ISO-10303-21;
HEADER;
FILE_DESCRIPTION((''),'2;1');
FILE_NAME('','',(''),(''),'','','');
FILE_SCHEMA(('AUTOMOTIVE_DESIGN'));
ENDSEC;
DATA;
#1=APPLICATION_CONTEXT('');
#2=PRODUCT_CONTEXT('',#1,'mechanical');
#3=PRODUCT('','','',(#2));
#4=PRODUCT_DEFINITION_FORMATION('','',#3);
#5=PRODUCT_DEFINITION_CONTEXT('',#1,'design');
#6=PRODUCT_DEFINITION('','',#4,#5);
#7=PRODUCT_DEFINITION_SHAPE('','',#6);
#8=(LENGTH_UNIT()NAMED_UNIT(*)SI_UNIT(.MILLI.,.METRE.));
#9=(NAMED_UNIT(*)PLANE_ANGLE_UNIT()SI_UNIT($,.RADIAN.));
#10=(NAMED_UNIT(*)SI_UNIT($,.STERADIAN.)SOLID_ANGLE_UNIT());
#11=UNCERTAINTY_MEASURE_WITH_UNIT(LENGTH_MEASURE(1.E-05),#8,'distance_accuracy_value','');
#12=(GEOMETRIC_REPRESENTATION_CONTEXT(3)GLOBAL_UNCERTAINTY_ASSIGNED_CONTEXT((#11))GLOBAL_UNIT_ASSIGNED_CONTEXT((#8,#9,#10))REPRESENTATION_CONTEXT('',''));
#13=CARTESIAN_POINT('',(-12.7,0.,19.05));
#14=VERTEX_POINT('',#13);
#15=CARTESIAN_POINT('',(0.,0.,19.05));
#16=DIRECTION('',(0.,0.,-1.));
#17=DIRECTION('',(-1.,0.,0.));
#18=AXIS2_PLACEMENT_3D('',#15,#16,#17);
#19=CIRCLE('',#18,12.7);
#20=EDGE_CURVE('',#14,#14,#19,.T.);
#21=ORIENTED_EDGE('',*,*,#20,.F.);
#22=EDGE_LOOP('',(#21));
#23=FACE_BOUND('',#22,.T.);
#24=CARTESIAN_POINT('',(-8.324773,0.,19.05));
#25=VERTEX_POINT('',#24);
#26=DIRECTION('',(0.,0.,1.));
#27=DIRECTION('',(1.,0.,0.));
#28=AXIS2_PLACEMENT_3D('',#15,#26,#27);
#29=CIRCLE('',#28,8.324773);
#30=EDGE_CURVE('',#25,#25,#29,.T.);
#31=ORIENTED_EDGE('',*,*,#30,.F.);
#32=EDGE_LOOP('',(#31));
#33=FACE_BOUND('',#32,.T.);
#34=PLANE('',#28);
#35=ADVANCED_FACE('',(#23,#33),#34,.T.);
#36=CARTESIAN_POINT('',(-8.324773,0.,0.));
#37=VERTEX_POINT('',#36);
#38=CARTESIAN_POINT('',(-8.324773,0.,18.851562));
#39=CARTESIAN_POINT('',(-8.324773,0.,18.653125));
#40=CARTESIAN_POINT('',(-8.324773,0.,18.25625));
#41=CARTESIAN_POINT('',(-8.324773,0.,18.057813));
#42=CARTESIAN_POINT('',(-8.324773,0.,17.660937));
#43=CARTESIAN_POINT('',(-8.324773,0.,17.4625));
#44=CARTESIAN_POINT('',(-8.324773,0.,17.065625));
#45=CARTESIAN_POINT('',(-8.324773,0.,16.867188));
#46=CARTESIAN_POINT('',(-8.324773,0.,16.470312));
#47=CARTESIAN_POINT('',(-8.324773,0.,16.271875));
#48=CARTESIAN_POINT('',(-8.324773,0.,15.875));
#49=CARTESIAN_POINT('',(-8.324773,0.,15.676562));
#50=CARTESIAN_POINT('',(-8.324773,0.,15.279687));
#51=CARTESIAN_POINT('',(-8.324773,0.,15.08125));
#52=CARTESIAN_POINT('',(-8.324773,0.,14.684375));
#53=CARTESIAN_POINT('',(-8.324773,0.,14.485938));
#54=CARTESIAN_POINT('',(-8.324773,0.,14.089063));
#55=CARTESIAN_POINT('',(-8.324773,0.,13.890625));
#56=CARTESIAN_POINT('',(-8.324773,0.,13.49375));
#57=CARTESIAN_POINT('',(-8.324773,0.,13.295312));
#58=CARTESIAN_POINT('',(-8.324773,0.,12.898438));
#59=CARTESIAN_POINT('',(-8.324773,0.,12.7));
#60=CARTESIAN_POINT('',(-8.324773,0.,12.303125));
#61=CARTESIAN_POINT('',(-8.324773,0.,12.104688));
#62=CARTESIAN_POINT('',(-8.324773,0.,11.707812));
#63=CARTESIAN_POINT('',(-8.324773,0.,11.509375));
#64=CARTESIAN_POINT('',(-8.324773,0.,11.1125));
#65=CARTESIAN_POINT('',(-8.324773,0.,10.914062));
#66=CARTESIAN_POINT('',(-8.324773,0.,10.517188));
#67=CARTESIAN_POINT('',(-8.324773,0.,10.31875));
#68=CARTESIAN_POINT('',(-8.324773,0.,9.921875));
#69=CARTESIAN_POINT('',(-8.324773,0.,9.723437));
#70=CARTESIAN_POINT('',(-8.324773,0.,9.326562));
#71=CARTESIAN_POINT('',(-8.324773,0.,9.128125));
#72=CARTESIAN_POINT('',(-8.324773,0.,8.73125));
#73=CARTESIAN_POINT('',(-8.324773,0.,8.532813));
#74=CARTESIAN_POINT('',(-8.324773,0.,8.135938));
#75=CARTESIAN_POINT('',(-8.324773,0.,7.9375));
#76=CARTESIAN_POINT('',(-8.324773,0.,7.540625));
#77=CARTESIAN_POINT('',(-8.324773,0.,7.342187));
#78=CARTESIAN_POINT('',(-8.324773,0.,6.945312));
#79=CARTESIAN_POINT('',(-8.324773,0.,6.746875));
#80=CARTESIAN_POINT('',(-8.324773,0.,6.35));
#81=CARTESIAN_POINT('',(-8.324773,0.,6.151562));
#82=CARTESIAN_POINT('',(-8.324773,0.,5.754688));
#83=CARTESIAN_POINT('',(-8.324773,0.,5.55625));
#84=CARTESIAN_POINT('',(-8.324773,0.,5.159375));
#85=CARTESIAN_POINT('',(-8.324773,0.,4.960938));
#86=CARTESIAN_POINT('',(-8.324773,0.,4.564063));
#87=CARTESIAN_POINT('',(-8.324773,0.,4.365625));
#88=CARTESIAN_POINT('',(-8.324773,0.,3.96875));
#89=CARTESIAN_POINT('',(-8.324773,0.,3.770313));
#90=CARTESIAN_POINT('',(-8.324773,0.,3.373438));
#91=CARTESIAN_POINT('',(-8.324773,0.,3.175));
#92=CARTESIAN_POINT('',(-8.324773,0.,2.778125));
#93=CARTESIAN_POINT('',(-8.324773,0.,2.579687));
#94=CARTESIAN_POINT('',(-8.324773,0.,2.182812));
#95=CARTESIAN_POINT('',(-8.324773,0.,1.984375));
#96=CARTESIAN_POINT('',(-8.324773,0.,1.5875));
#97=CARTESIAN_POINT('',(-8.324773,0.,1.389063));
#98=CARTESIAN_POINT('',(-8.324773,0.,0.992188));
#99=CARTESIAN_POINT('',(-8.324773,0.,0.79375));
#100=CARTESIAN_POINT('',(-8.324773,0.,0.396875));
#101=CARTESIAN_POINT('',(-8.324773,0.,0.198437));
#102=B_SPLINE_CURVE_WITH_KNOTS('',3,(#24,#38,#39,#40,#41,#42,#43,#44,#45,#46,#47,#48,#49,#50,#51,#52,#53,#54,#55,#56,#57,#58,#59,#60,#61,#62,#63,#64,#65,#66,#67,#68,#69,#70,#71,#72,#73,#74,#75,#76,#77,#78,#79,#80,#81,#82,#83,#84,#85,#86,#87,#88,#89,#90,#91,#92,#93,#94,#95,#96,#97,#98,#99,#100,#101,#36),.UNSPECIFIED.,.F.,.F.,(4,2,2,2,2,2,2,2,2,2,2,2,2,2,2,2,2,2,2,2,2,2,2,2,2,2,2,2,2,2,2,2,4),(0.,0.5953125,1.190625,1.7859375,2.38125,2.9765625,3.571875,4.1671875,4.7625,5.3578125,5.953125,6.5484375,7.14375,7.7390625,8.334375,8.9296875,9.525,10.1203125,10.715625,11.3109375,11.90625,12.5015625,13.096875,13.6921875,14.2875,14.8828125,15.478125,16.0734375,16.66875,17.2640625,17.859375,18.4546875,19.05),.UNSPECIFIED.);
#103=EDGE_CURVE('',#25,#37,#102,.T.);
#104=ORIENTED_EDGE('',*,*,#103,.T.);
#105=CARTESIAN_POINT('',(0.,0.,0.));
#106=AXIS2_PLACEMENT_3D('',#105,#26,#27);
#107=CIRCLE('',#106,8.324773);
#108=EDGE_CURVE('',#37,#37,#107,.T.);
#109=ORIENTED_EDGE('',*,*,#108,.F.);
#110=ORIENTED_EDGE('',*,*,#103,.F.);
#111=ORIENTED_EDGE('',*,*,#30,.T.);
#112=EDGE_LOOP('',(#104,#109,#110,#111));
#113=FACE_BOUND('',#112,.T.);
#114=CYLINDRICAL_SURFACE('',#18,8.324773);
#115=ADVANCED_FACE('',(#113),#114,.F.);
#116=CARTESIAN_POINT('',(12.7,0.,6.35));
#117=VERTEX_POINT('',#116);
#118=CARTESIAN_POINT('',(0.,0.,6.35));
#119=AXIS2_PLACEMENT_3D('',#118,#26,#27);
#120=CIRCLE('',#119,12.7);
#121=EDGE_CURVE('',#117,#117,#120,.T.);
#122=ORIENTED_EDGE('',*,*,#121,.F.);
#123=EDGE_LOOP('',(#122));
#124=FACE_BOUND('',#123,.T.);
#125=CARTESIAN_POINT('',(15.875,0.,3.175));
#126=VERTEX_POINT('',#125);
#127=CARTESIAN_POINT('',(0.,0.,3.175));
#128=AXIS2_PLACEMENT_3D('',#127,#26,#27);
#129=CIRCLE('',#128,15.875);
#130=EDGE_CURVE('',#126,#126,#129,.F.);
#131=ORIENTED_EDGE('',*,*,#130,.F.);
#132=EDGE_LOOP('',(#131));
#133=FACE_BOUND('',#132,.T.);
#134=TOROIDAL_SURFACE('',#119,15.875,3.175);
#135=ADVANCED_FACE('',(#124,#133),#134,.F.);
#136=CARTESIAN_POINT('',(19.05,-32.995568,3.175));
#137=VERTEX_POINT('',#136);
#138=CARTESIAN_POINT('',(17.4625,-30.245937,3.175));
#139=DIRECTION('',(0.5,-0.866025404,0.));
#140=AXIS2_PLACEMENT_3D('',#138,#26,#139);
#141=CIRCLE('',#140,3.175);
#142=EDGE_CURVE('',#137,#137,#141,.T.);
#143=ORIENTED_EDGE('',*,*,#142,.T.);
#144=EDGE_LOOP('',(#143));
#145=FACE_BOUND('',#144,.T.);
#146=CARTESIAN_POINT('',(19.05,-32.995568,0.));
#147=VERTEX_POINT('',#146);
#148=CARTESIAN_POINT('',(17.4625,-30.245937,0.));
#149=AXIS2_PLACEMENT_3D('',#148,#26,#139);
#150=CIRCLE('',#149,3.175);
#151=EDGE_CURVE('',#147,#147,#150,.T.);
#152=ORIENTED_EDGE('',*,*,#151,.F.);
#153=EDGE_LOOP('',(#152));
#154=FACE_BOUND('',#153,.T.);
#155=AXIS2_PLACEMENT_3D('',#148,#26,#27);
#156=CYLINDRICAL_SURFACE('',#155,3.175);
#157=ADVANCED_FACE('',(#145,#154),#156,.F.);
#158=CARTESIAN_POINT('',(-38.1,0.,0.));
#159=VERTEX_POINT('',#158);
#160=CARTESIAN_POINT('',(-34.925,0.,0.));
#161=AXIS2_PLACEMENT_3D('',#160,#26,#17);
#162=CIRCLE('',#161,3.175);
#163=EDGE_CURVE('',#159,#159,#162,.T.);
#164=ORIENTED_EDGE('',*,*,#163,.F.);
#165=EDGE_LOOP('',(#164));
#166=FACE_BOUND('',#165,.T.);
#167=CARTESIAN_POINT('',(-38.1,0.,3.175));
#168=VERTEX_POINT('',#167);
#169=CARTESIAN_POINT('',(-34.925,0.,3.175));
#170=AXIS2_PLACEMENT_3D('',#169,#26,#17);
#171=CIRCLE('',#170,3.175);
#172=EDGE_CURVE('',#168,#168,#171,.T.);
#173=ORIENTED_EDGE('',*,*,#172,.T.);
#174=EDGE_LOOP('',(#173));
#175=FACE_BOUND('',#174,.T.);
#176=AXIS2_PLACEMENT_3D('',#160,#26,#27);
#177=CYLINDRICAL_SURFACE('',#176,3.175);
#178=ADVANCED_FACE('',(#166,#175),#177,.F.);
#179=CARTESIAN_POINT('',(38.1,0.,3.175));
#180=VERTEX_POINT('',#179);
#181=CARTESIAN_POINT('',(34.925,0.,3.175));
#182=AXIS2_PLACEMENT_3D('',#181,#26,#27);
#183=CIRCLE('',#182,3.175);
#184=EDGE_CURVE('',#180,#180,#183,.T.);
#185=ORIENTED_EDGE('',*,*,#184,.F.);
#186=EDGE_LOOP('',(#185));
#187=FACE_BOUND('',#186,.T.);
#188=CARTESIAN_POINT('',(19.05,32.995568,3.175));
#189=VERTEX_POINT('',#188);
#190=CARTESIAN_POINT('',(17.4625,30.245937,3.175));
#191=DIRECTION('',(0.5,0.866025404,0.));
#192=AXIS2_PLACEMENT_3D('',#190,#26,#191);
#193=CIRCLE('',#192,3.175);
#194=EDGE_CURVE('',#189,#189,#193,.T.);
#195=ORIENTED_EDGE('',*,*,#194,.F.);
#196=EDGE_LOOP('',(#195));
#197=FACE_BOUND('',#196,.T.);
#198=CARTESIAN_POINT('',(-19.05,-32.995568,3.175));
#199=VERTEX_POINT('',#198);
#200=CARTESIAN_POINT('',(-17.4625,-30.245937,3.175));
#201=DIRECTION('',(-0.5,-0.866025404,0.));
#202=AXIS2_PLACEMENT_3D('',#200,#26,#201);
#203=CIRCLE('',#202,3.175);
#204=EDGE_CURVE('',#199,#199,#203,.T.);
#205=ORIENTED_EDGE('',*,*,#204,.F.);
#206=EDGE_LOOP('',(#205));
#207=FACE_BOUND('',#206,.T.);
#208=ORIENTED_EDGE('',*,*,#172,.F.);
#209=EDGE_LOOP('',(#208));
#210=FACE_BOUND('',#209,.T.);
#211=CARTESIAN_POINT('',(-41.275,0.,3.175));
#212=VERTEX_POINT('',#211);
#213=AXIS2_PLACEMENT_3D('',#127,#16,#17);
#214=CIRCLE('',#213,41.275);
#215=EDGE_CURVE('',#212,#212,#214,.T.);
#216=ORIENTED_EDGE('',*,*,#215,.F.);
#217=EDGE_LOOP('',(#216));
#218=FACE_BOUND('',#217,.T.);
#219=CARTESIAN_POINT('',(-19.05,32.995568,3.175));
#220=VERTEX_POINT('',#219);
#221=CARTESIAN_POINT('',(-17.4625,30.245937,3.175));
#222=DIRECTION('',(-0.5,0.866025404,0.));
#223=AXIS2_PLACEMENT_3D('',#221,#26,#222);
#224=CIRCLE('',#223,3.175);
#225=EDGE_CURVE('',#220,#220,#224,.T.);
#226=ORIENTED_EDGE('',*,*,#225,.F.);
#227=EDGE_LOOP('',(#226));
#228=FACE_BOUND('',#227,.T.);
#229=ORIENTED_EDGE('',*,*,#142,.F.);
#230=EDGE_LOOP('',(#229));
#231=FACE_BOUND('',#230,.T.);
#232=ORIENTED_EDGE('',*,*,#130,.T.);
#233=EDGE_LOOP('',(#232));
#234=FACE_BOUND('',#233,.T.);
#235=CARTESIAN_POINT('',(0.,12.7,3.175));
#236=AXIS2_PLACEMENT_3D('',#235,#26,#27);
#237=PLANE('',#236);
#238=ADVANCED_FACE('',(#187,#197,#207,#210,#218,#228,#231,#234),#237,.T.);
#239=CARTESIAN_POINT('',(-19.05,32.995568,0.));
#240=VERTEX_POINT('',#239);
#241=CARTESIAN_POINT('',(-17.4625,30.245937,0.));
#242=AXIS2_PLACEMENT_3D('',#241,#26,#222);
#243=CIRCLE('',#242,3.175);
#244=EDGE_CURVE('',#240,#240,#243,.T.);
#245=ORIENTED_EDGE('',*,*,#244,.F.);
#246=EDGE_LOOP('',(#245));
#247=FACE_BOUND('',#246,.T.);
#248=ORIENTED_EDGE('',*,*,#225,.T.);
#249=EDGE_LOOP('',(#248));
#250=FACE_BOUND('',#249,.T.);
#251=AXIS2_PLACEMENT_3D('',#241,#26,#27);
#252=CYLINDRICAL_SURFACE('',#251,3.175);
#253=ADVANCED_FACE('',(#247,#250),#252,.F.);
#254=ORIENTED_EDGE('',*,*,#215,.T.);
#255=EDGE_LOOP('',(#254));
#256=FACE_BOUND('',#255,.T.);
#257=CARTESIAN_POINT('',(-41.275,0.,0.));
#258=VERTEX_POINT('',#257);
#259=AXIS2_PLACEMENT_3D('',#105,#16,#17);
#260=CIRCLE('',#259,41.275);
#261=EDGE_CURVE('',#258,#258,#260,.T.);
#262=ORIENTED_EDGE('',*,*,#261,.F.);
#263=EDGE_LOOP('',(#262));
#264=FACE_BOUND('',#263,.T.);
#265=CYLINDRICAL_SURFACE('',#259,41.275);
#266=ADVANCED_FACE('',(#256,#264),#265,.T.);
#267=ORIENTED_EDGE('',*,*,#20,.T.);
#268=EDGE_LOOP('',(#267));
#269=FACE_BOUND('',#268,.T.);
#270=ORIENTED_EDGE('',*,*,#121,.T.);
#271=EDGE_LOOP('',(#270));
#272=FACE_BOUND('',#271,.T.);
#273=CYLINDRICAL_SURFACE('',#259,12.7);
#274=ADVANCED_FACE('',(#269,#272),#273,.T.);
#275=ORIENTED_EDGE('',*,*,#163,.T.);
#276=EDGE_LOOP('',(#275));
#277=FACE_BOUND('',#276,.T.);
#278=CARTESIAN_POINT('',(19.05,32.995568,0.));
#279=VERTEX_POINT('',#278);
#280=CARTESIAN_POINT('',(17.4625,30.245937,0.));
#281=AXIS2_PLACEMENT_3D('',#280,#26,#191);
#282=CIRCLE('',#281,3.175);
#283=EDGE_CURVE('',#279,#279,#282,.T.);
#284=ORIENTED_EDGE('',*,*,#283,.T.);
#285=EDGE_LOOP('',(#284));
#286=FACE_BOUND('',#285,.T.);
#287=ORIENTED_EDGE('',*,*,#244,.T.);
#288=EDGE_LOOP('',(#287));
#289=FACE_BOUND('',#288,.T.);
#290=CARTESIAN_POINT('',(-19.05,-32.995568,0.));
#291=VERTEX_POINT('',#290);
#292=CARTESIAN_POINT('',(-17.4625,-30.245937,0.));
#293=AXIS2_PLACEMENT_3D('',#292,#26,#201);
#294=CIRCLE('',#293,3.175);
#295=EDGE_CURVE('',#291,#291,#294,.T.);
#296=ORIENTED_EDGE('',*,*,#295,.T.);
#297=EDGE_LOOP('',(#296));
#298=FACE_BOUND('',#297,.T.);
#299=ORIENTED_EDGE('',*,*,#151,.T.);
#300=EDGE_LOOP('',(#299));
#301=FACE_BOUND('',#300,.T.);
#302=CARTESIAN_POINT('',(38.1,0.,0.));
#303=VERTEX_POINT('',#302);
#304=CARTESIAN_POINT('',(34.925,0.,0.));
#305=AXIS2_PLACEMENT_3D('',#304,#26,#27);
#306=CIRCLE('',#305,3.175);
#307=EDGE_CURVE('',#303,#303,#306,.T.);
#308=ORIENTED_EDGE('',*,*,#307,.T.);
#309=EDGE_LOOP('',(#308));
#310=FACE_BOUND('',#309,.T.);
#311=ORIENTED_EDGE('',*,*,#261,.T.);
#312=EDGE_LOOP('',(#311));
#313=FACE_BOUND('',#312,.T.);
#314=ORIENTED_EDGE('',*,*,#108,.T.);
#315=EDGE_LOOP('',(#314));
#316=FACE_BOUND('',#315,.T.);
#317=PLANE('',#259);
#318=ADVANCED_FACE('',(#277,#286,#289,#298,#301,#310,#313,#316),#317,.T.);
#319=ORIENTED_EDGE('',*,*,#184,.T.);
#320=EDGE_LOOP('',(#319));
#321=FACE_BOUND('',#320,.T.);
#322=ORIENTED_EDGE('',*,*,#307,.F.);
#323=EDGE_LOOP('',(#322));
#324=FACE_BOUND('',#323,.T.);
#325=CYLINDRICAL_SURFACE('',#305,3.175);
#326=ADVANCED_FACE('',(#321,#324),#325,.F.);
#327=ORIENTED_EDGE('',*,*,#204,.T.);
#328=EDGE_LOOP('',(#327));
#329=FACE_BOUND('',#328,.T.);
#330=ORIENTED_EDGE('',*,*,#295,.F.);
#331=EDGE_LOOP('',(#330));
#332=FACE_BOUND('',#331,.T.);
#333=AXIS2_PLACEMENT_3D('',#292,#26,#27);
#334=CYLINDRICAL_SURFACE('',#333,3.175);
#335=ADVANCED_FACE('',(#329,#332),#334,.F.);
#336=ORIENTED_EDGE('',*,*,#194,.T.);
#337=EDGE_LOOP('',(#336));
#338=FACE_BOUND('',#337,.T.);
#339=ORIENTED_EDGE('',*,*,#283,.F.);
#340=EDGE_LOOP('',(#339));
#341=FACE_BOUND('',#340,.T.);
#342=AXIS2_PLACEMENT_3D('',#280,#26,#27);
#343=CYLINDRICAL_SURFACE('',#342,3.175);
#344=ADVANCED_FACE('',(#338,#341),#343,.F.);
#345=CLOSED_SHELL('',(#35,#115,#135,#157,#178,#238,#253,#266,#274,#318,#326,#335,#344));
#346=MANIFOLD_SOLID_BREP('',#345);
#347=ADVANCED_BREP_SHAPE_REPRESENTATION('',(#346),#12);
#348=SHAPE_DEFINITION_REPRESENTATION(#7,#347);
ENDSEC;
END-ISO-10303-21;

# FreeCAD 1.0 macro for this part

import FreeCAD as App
import Part
import Sketcher

V = App.Vector
Q = App.Units.Quantity


def edges_at(feature, points):
    """Names of the edges that pass closest to the given points."""
    edges = feature.Shape.Edges
    near = lambda p: min(range(len(edges)), key=lambda i: edges[i].distToShape(Part.Vertex(*p))[0])
    return sorted({f"Edge{near(p) + 1}" for p in points})

doc = App.newDocument("Part")
body = doc.addObject("PartDesign::Body", "Body")

sketch1 = body.newObject("Sketcher::SketchObject", "Sketch")
sketch1.AttachmentSupport = (doc.getObject("YZ_Plane"), [""])
sketch1.MapMode = "FlatFace"
sketch1.addGeometry([
    Part.LineSegment(V(0, 0, 0), V(41.3, 0, 0)),
    Part.LineSegment(V(41.3, 0, 0), V(41.3, 3.2, 0)),
    Part.LineSegment(V(41.3, 3.2, 0), V(12.7, 3.2, 0)),
    Part.LineSegment(V(12.7, 3.2, 0), V(12.7, 19.1, 0)),
    Part.LineSegment(V(12.7, 19.1, 0), V(0, 19.1, 0)),
    Part.LineSegment(V(0, 19.1, 0), V(0, 0, 0)),
], False)
sketch1.addConstraint([
    Sketcher.Constraint("Coincident", 0, 2, 1, 1),
    Sketcher.Constraint("Coincident", 1, 2, 2, 1),
    Sketcher.Constraint("Coincident", 2, 2, 3, 1),
    Sketcher.Constraint("Coincident", 3, 2, 4, 1),
    Sketcher.Constraint("Coincident", 4, 2, 5, 1),
    Sketcher.Constraint("Coincident", 5, 2, 0, 1),
    Sketcher.Constraint("Horizontal", 0),
    Sketcher.Constraint("Vertical", 1),
    Sketcher.Constraint("Horizontal", 2),
    Sketcher.Constraint("Vertical", 3),
    Sketcher.Constraint("Horizontal", 4),
    Sketcher.Constraint("Vertical", 5),
    Sketcher.Constraint("Coincident", 5, 2, -1, 1),
    Sketcher.Constraint("DistanceX", 4, 2, 4, 1, Q("0.5 in")),
    Sketcher.Constraint("DistanceY", 5, 2, 5, 1, Q("0.75 in")),
    Sketcher.Constraint("DistanceX", 0, 1, 0, 2, Q("1.625 in")),
    Sketcher.Constraint("DistanceY", 1, 1, 1, 2, Q("0.125 in")),
])
revolution = body.newObject("PartDesign::Revolution", "Revolution")
revolution.Profile = sketch1
revolution.ReferenceAxis = (sketch1, ["V_Axis"])
revolution.Angle = 360

sketch2 = body.newObject("Sketcher::SketchObject", "Sketch001")
sketch2.AttachmentSupport = (doc.getObject("XY_Plane"), [""])
sketch2.MapMode = "FlatFace"
sketch2.addGeometry(Part.Circle(V(0, 0, 0), V(0, 0, 1), 8), False)
sketch2.addConstraint([
    Sketcher.Constraint("Coincident", 0, 3, -1, 1),
    Sketcher.Constraint("Diameter", 0, Q("16.649546 mm")),
])
pocket1 = body.newObject("PartDesign::Pocket", "Pocket")
pocket1.Profile = sketch2
pocket1.Type = "ThroughAll"
pocket1.Reversed = True

sketch3 = body.newObject("Sketcher::SketchObject", "Sketch002")
sketch3.AttachmentSupport = (doc.getObject("XY_Plane"), [""])
sketch3.MapMode = "FlatFace"
sketch3.AttachmentOffset = App.Placement(V(0, 0, 0.125 * 25.4), App.Rotation())
sketch3.addGeometry(Part.Circle(V(34.9, 0, 0), V(0, 0, 1), 3.2), False)
sketch3.addConstraint([
    Sketcher.Constraint("PointOnObject", 0, 3, -1),
    Sketcher.Constraint("Diameter", 0, Q("0.25 in")),
    Sketcher.Constraint("DistanceX", -1, 1, 0, 3, Q("1.375 in")),
])
pocket2 = body.newObject("PartDesign::Pocket", "Pocket001")
pocket2.Profile = sketch3
pocket2.Type = "ThroughAll"
doc.recompute()

polarpattern = body.newObject("PartDesign::PolarPattern", "PolarPattern")
polarpattern.Originals = [pocket2]
polarpattern.Axis = (doc.getObject("Z_Axis"), [""])
polarpattern.Angle = 360
polarpattern.Occurrences = 6
body.Tip = polarpattern
doc.recompute()

fillet = body.newObject("PartDesign::Fillet", "Fillet")
fillet.Base = (polarpattern, edges_at(polarpattern, [(12.7, 0, 3.175)]))
fillet.Radius = Q("0.125 in")

doc.recompute()
